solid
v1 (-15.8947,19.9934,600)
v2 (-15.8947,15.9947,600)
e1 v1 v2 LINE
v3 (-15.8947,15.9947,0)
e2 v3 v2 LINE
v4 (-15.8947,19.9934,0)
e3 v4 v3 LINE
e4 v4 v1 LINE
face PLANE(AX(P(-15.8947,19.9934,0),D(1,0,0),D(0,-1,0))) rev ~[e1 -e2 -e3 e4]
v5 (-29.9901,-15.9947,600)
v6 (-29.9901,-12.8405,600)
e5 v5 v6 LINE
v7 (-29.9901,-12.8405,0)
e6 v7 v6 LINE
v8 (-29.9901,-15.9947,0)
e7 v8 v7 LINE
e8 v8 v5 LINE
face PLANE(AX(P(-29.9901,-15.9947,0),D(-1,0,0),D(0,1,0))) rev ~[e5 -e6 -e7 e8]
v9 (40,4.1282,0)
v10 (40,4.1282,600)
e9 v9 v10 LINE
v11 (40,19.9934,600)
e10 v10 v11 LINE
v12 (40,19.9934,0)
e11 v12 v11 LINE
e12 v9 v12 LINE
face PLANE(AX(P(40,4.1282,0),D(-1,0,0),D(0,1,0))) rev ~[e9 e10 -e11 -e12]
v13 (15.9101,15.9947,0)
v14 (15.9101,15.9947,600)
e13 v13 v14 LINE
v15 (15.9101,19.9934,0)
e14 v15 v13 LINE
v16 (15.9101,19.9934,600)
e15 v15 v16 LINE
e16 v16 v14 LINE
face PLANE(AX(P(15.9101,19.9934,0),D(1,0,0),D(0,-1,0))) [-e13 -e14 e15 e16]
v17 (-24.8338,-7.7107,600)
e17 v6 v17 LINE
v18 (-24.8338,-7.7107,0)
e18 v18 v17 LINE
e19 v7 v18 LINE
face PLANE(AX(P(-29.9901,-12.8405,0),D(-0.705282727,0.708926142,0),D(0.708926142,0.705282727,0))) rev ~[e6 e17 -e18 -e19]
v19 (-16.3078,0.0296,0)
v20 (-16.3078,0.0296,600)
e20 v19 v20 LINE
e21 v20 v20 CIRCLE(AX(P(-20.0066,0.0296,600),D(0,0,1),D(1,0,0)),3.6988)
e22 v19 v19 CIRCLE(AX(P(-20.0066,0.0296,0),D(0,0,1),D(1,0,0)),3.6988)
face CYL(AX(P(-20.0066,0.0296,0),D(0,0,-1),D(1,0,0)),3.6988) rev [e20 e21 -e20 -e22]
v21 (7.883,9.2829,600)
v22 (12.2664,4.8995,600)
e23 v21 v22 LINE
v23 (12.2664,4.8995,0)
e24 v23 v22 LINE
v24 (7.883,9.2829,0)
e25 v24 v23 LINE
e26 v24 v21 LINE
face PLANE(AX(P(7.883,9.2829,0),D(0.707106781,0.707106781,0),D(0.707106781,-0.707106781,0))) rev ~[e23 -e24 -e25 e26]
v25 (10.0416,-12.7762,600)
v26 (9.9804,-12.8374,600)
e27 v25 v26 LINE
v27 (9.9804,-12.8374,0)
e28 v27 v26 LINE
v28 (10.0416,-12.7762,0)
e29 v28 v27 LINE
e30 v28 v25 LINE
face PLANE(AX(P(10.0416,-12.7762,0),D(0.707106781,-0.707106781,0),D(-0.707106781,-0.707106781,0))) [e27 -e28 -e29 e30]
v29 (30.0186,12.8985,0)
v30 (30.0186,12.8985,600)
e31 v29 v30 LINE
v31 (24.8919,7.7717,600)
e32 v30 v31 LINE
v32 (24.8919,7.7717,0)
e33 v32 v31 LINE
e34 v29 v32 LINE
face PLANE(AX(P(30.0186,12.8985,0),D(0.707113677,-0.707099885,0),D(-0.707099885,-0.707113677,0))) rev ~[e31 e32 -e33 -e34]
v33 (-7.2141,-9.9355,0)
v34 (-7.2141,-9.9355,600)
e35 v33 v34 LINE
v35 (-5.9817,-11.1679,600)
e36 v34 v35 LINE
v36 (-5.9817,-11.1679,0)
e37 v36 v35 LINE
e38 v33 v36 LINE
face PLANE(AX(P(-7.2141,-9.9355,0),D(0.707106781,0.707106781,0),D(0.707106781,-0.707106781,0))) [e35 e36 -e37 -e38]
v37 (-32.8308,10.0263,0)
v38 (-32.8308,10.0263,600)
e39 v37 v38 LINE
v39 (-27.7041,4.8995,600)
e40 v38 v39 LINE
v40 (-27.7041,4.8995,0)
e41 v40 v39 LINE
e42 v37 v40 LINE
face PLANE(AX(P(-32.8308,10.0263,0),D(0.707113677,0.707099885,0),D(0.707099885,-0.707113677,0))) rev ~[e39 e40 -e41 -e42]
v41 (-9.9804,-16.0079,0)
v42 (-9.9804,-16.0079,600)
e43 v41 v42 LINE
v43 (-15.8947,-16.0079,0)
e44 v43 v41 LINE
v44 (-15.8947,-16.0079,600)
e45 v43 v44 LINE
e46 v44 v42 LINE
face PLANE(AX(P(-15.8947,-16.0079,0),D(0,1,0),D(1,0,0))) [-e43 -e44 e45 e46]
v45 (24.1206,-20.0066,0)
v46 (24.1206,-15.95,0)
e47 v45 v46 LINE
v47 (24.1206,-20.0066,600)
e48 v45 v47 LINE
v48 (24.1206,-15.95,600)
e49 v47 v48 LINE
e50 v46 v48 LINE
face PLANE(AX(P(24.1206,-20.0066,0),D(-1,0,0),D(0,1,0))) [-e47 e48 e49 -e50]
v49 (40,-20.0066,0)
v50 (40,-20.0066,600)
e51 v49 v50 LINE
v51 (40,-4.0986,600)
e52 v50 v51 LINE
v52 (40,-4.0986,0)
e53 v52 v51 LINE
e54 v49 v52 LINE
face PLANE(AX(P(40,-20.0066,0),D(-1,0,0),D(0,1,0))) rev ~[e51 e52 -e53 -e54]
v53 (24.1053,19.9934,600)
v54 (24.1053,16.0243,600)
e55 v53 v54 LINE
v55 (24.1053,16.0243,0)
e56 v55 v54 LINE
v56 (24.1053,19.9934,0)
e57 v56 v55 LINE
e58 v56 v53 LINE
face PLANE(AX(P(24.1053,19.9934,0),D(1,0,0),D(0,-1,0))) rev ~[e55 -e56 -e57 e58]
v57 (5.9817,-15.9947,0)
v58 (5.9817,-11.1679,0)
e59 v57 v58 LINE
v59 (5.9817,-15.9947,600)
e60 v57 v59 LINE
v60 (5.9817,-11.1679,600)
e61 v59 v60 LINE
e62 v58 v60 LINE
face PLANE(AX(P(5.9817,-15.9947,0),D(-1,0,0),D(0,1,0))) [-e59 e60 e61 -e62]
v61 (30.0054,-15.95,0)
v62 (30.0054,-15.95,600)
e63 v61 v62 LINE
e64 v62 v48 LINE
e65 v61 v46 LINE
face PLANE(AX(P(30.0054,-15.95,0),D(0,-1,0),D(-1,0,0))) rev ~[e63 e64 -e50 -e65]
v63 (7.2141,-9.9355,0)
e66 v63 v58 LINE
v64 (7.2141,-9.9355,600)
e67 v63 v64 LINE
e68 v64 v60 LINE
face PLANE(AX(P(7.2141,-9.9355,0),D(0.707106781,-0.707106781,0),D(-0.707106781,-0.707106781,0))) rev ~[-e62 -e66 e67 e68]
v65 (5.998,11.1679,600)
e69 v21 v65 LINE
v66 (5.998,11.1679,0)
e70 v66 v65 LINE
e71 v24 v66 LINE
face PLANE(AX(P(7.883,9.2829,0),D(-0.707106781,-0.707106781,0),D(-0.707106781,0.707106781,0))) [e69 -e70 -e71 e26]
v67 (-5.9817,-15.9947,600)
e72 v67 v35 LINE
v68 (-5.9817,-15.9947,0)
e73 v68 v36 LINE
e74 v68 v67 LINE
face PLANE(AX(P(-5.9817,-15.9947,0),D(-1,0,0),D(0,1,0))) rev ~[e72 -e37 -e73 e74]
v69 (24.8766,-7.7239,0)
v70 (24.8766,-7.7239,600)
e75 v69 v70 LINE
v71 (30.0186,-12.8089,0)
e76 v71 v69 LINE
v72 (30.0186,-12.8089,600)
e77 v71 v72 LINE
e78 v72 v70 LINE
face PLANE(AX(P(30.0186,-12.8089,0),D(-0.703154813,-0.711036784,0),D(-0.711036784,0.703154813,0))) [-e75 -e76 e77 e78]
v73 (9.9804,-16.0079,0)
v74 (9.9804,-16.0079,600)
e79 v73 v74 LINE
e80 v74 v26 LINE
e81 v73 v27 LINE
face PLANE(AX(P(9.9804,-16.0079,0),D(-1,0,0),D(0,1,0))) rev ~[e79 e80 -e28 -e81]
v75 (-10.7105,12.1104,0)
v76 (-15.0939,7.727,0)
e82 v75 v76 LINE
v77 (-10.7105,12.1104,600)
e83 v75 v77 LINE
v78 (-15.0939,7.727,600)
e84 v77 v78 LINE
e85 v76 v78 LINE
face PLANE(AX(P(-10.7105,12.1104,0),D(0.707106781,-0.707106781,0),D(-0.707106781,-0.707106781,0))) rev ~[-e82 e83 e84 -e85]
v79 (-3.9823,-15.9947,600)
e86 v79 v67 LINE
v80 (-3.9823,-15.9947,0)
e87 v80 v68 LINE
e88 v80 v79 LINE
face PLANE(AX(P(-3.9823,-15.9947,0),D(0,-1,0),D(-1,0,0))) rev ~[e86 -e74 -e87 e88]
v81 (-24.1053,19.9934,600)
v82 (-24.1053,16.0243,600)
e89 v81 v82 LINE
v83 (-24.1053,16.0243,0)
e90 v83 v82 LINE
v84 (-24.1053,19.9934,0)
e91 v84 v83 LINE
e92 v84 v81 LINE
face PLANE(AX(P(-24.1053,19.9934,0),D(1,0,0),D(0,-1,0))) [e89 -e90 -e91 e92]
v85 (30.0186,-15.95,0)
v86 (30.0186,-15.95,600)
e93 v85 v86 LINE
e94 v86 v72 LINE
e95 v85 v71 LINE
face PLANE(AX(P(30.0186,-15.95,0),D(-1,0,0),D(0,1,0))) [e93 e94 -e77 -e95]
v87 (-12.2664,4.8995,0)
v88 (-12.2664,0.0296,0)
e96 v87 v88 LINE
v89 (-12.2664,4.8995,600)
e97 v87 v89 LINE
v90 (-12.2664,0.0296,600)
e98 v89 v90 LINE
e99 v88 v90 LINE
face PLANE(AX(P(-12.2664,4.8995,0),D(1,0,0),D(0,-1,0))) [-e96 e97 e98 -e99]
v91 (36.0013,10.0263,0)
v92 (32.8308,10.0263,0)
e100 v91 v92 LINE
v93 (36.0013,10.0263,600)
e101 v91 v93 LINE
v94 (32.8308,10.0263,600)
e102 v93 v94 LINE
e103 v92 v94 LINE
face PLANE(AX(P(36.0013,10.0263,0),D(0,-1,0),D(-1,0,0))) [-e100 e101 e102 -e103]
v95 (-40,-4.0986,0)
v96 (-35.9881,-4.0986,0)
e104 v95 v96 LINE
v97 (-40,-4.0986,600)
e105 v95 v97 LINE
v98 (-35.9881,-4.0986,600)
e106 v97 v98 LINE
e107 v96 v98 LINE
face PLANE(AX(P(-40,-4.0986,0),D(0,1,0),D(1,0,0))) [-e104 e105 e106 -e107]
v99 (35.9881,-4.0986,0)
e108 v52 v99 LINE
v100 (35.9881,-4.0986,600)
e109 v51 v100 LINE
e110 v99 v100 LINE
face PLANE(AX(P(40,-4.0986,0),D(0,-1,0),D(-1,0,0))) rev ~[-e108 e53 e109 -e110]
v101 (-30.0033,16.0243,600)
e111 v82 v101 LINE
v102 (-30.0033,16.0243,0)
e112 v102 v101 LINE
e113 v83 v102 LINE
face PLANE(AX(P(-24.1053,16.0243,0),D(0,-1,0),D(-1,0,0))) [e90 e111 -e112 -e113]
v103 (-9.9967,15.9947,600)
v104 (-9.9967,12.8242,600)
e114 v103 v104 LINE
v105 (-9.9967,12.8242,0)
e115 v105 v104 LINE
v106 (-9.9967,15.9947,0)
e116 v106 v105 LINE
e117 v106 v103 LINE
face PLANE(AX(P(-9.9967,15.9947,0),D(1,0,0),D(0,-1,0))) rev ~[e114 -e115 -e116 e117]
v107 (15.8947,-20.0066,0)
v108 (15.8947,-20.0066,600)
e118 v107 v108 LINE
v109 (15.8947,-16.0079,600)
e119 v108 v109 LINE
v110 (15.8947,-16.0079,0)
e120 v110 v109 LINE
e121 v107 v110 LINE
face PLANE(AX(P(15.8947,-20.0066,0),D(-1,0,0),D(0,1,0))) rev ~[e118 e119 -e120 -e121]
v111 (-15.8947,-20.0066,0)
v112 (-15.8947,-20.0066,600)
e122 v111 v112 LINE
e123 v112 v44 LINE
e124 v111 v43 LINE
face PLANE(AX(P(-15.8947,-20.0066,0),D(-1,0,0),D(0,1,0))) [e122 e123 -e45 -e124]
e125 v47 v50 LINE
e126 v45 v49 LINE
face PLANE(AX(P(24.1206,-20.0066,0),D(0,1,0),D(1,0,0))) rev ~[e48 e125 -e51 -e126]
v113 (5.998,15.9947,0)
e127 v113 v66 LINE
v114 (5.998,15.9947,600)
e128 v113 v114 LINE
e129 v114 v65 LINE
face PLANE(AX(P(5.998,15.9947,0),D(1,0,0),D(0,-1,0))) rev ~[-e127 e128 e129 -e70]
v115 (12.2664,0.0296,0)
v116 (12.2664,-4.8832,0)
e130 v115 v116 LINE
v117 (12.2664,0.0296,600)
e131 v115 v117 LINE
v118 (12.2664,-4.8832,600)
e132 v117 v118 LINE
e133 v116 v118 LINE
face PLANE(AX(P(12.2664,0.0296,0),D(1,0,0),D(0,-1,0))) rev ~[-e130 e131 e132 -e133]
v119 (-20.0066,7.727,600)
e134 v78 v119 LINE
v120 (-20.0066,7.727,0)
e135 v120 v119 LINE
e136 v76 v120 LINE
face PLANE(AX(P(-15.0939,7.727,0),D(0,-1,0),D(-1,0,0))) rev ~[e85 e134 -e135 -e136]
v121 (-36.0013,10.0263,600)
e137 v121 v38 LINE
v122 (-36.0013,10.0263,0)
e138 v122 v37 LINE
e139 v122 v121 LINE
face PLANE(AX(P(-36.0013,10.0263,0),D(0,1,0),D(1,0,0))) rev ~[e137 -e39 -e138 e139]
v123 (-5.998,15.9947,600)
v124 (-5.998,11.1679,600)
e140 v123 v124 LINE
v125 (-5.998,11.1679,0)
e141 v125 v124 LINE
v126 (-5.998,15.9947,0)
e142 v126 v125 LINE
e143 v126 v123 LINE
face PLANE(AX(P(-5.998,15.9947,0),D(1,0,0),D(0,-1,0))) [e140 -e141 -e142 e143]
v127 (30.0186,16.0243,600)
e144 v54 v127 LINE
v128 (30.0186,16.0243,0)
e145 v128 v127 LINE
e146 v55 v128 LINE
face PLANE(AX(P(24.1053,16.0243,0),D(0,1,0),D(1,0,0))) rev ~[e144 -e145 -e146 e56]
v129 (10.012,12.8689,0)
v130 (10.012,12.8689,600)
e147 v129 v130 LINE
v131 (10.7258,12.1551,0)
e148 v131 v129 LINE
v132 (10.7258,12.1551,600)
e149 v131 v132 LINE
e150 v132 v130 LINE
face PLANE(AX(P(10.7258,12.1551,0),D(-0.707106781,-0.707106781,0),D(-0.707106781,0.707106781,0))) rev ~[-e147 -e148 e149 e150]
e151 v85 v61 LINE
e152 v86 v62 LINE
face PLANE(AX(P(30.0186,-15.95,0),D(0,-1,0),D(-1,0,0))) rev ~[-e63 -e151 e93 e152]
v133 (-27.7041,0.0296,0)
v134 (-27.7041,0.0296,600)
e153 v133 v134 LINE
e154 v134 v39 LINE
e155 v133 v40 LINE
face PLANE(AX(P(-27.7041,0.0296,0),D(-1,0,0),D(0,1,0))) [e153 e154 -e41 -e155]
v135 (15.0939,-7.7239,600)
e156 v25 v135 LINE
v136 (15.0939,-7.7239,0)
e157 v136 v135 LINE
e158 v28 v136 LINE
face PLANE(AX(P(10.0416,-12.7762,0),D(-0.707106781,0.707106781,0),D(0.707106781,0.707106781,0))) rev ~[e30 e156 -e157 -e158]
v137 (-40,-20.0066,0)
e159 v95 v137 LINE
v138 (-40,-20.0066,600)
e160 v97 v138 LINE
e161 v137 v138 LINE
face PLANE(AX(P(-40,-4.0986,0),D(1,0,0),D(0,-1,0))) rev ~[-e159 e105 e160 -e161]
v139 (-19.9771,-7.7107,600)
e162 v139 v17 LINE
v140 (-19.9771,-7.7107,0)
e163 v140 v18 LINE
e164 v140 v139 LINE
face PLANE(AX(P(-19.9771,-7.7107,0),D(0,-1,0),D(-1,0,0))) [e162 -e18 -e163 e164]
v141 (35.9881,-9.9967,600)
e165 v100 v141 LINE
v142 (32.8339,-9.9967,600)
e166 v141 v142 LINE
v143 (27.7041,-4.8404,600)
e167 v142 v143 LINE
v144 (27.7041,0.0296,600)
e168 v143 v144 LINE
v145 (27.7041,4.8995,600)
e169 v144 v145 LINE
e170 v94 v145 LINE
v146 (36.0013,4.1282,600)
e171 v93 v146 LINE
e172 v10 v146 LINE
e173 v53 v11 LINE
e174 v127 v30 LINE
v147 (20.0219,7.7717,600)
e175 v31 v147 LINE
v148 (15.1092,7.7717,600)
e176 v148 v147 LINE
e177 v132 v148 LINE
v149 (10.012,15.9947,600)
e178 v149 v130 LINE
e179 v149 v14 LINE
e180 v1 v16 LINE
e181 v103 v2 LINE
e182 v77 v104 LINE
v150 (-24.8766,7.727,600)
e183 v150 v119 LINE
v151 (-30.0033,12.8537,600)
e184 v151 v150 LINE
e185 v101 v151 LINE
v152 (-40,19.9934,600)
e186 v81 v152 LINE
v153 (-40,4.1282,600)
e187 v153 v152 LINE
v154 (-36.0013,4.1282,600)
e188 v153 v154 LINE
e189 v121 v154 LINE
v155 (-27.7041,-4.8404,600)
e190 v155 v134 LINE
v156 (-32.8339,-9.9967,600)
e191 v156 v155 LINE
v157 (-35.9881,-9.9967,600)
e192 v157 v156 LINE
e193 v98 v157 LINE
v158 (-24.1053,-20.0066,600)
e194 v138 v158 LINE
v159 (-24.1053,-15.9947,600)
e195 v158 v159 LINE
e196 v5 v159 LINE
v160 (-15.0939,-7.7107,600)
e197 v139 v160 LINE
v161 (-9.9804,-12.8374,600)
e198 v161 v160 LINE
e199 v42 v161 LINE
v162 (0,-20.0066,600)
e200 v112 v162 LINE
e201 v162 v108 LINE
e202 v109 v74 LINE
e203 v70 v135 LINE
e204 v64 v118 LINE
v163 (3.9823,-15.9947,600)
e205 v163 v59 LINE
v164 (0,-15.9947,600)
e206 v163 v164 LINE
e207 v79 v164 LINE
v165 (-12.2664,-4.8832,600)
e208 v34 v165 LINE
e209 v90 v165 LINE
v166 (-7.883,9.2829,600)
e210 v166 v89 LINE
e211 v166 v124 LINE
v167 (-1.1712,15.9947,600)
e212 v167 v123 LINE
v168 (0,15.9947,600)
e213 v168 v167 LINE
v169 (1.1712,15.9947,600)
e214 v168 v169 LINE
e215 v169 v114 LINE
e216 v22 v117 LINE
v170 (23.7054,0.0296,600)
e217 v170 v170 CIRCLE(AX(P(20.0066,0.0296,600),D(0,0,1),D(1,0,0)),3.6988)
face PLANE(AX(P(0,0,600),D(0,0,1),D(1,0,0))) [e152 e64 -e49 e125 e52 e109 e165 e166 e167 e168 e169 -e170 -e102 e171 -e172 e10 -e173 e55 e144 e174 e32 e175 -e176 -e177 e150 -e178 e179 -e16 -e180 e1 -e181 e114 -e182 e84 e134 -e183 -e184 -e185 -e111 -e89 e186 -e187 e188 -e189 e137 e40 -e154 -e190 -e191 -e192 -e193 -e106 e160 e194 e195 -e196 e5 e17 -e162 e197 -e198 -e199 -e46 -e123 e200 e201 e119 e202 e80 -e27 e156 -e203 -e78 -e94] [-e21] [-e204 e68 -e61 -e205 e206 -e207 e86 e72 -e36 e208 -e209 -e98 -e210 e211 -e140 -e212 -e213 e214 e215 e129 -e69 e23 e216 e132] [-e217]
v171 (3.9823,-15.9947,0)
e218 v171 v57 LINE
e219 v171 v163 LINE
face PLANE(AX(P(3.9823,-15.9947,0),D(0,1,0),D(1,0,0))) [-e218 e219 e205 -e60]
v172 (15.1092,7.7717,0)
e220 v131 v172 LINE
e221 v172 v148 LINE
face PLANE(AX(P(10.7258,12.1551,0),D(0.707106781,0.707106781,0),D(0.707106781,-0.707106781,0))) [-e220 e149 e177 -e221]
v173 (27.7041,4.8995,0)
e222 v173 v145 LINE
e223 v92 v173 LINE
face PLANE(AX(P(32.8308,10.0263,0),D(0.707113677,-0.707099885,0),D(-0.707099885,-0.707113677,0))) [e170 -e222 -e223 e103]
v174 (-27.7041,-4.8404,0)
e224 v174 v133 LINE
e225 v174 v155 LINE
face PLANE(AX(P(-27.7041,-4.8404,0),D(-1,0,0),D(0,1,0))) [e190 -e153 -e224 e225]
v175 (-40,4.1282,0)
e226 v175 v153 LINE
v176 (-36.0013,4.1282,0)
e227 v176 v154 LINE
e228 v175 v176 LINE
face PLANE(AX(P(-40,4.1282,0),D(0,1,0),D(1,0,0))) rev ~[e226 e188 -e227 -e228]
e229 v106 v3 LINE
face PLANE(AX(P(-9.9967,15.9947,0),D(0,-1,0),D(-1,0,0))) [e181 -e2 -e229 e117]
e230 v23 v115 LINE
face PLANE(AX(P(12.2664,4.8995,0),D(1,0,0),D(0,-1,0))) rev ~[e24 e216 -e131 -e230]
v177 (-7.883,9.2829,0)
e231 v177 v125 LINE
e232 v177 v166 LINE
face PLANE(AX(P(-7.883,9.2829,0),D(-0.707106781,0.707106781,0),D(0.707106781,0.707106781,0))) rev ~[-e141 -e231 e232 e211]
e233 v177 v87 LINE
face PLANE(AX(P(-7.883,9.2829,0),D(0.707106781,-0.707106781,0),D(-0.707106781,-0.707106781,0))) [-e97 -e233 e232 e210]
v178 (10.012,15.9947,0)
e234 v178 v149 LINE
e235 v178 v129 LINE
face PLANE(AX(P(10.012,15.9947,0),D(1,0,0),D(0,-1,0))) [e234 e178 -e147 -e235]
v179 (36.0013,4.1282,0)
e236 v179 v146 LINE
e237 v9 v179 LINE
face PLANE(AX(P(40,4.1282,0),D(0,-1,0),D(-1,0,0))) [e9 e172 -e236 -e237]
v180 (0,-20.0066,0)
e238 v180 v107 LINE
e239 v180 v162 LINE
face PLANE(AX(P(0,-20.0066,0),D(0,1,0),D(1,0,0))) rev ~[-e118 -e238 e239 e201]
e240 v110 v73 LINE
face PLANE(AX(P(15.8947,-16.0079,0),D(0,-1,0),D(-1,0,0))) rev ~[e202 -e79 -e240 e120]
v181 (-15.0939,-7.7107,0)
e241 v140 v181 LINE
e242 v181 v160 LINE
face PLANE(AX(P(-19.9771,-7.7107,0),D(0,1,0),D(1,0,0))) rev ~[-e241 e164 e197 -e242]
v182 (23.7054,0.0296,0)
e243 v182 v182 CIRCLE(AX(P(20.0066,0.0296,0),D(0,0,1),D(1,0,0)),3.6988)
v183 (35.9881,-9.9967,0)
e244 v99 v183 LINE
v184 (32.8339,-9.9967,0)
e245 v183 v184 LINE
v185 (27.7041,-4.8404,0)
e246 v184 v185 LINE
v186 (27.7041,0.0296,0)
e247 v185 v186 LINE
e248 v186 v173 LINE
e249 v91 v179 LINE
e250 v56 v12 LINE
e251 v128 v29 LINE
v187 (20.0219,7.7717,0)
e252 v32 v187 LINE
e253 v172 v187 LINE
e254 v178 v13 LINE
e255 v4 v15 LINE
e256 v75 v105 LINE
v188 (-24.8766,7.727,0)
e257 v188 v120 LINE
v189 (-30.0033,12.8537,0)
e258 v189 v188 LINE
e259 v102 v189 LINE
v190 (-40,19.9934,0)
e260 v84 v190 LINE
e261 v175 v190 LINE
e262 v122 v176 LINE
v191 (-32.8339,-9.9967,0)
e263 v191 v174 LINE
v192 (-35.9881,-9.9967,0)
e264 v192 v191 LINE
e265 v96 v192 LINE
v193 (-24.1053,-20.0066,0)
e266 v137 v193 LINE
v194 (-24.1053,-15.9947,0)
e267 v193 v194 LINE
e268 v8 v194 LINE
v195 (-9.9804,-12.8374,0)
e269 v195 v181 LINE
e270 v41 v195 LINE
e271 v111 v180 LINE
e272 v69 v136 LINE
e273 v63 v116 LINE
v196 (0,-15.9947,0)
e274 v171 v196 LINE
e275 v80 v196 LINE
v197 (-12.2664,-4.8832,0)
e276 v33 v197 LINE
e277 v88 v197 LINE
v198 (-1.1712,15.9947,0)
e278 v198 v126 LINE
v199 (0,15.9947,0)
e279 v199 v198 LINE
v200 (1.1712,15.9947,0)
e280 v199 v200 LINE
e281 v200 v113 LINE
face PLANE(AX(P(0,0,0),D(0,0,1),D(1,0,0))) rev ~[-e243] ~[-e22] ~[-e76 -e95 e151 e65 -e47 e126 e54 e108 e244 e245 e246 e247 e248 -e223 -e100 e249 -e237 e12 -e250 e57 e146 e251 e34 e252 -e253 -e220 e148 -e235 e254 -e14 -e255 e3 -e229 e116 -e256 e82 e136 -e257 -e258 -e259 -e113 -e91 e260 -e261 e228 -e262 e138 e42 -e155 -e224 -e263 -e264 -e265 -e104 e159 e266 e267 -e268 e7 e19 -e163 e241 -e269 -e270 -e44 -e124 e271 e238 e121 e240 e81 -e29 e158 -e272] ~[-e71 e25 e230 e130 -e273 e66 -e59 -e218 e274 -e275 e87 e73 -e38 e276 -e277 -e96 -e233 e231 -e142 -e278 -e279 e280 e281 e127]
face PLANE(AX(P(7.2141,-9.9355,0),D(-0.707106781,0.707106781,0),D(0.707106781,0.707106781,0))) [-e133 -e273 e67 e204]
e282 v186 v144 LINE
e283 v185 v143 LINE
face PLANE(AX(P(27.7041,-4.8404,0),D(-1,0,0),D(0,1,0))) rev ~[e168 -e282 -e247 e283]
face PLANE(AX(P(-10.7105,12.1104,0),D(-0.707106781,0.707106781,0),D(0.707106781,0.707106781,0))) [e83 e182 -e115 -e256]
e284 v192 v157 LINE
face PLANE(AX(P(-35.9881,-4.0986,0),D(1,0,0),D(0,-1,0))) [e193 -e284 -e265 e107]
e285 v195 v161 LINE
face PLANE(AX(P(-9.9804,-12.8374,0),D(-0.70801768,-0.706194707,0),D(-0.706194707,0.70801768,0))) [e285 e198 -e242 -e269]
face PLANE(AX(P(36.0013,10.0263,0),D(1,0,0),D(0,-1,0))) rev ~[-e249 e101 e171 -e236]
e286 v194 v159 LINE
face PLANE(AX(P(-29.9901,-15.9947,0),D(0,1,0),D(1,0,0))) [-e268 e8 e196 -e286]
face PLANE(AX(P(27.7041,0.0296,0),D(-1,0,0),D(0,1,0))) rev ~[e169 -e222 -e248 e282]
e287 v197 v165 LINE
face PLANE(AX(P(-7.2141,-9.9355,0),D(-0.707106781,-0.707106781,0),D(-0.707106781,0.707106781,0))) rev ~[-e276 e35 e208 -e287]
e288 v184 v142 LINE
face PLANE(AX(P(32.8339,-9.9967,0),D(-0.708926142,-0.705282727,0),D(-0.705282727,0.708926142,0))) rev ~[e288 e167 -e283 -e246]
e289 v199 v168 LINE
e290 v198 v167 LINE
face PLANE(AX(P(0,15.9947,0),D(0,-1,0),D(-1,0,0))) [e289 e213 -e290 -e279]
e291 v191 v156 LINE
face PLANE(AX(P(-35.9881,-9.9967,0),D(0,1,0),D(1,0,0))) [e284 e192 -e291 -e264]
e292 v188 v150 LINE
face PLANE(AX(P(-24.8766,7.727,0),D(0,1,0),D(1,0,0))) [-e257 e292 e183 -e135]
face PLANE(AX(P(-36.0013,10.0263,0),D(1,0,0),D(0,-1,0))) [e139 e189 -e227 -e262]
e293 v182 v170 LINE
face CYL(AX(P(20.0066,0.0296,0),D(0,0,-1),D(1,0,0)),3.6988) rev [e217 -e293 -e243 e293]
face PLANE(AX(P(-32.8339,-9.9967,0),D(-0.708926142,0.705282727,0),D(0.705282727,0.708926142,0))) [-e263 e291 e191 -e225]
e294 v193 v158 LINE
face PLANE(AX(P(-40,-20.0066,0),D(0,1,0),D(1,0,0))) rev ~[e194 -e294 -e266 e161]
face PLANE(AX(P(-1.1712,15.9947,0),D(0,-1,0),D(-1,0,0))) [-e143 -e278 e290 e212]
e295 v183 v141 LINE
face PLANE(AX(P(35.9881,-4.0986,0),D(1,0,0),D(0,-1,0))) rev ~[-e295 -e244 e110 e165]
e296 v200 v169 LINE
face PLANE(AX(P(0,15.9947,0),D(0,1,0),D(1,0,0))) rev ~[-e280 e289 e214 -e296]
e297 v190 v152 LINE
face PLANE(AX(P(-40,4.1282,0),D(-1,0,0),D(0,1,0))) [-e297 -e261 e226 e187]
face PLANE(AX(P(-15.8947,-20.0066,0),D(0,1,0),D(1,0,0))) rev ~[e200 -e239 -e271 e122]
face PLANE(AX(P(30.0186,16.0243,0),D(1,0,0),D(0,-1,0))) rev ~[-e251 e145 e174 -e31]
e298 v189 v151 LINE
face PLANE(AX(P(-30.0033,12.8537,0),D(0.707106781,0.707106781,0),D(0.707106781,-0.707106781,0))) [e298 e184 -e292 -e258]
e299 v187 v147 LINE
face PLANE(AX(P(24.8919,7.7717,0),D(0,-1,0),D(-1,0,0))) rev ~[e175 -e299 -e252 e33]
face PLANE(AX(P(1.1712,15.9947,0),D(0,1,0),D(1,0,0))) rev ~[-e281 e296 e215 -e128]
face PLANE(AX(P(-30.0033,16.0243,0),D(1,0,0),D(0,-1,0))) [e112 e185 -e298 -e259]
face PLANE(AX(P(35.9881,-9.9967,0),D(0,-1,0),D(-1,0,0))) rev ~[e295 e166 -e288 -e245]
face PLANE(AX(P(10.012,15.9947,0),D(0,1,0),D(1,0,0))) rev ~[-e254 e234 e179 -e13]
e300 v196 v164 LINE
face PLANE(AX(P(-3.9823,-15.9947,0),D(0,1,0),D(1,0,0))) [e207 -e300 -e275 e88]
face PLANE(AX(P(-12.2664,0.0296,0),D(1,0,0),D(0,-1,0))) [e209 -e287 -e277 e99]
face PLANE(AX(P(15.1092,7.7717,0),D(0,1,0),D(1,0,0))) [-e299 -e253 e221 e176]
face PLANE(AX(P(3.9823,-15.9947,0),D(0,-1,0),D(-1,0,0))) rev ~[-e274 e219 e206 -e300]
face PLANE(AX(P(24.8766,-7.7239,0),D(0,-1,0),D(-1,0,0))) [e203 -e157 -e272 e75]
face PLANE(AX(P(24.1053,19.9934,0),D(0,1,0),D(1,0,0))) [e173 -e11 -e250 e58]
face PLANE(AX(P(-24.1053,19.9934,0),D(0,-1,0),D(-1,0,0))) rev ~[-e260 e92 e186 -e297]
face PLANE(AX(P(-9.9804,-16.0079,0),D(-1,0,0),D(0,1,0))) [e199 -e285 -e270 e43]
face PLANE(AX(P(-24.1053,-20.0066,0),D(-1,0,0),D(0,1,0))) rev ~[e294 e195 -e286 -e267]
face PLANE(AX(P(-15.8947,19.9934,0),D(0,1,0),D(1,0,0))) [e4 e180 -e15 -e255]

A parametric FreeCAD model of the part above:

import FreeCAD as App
import Part
import Sketcher
from FreeCAD import Vector
Q = App.Units.Quantity

doc = App.newDocument("Part")
body = doc.addObject("PartDesign::Body", "Body")

# Sketch on XY plane
sketch1 = body.newObject("Sketcher::SketchObject", "Sketch")
sketch1.AttachmentSupport = (doc.getObject("XY_Plane"), [""])
sketch1.MapMode = "FlatFace"
sketch1.addGeometry(Part.LineSegment(Vector(-40, -4.1, 0), Vector(-40, -20, 0)), False)
sketch1.addGeometry(Part.LineSegment(Vector(-40, -20, 0), Vector(-24.1, -20, 0)), False)
sketch1.addGeometry(Part.LineSegment(Vector(-24.1, -20, 0), Vector(-24.1, -16, 0)), False)
sketch1.addGeometry(Part.LineSegment(Vector(-24.1, -16, 0), Vector(-30, -16, 0)), False)
sketch1.addGeometry(Part.LineSegment(Vector(-30, -16, 0), Vector(-30, -12.8, 0)), False)
sketch1.addGeometry(Part.LineSegment(Vector(-30, -12.8, 0), Vector(-24.8, -7.7, 0)), False)
sketch1.addGeometry(Part.LineSegment(Vector(-24.8, -7.7, 0), Vector(-15.1, -7.7, 0)), False)
sketch1.addGeometry(Part.LineSegment(Vector(-15.1, -7.7, 0), Vector(-10, -12.8, 0)), False)
sketch1.addGeometry(Part.LineSegment(Vector(-10, -12.8, 0), Vector(-10, -16, 0)), False)
sketch1.addGeometry(Part.LineSegment(Vector(-10, -16, 0), Vector(-15.9, -16, 0)), False)
sketch1.addGeometry(Part.LineSegment(Vector(-15.9, -16, 0), Vector(-15.9, -20, 0)), False)
sketch1.addGeometry(Part.LineSegment(Vector(-15.9, -20, 0), Vector(15.9, -20, 0)), False)
sketch1.addGeometry(Part.LineSegment(Vector(15.9, -20, 0), Vector(15.9, -16, 0)), False)
sketch1.addGeometry(Part.LineSegment(Vector(15.9, -16, 0), Vector(10, -16, 0)), False)
sketch1.addGeometry(Part.LineSegment(Vector(10, -16, 0), Vector(10, -12.8, 0)), False)
sketch1.addGeometry(Part.LineSegment(Vector(10, -12.8, 0), Vector(15.1, -7.7, 0)), False)
sketch1.addGeometry(Part.LineSegment(Vector(15.1, -7.7, 0), Vector(24.9, -7.7, 0)), False)
sketch1.addGeometry(Part.LineSegment(Vector(24.9, -7.7, 0), Vector(30, -12.8, 0)), False)
sketch1.addGeometry(Part.LineSegment(Vector(30, -12.8, 0), Vector(30, -15.9, 0)), False)
sketch1.addGeometry(Part.LineSegment(Vector(30, -15.9, 0), Vector(24.1, -15.9, 0)), False)
sketch1.addGeometry(Part.LineSegment(Vector(24.1, -15.9, 0), Vector(24.1, -20, 0)), False)
sketch1.addGeometry(Part.LineSegment(Vector(24.1, -20, 0), Vector(40, -20, 0)), False)
sketch1.addGeometry(Part.LineSegment(Vector(40, -20, 0), Vector(40, -4.1, 0)), False)
sketch1.addGeometry(Part.LineSegment(Vector(40, -4.1, 0), Vector(36, -4.1, 0)), False)
sketch1.addGeometry(Part.LineSegment(Vector(36, -4.1, 0), Vector(36, -10, 0)), False)
sketch1.addGeometry(Part.LineSegment(Vector(36, -10, 0), Vector(32.8, -10, 0)), False)
sketch1.addGeometry(Part.LineSegment(Vector(32.8, -10, 0), Vector(27.7, -4.8, 0)), False)
sketch1.addGeometry(Part.LineSegment(Vector(27.7, -4.8, 0), Vector(27.7, 4.9, 0)), False)
sketch1.addGeometry(Part.LineSegment(Vector(27.7, 4.9, 0), Vector(32.8, 10, 0)), False)
sketch1.addGeometry(Part.LineSegment(Vector(32.8, 10, 0), Vector(36, 10, 0)), False)
sketch1.addGeometry(Part.LineSegment(Vector(36, 10, 0), Vector(36, 4.1, 0)), False)
sketch1.addGeometry(Part.LineSegment(Vector(36, 4.1, 0), Vector(40, 4.1, 0)), False)
sketch1.addGeometry(Part.LineSegment(Vector(40, 4.1, 0), Vector(40, 20, 0)), False)
sketch1.addGeometry(Part.LineSegment(Vector(40, 20, 0), Vector(24.1, 20, 0)), False)
sketch1.addGeometry(Part.LineSegment(Vector(24.1, 20, 0), Vector(24.1, 16, 0)), False)
sketch1.addGeometry(Part.LineSegment(Vector(24.1, 16, 0), Vector(30, 16, 0)), False)
sketch1.addGeometry(Part.LineSegment(Vector(30, 16, 0), Vector(30, 12.9, 0)), False)
sketch1.addGeometry(Part.LineSegment(Vector(30, 12.9, 0), Vector(24.9, 7.8, 0)), False)
sketch1.addGeometry(Part.LineSegment(Vector(24.9, 7.8, 0), Vector(15.1, 7.8, 0)), False)
sketch1.addGeometry(Part.LineSegment(Vector(15.1, 7.8, 0), Vector(10, 12.9, 0)), False)
sketch1.addGeometry(Part.LineSegment(Vector(10, 12.9, 0), Vector(10, 16, 0)), False)
sketch1.addGeometry(Part.LineSegment(Vector(10, 16, 0), Vector(15.9, 16, 0)), False)
sketch1.addGeometry(Part.LineSegment(Vector(15.9, 16, 0), Vector(15.9, 20, 0)), False)
sketch1.addGeometry(Part.LineSegment(Vector(15.9, 20, 0), Vector(-15.9, 20, 0)), False)
sketch1.addGeometry(Part.LineSegment(Vector(-15.9, 20, 0), Vector(-15.9, 16, 0)), False)
sketch1.addGeometry(Part.LineSegment(Vector(-15.9, 16, 0), Vector(-10, 16, 0)), False)
sketch1.addGeometry(Part.LineSegment(Vector(-10, 16, 0), Vector(-10, 12.8, 0)), False)
sketch1.addGeometry(Part.LineSegment(Vector(-10, 12.8, 0), Vector(-15.1, 7.7, 0)), False)
sketch1.addGeometry(Part.LineSegment(Vector(-15.1, 7.7, 0), Vector(-24.9, 7.7, 0)), False)
sketch1.addGeometry(Part.LineSegment(Vector(-24.9, 7.7, 0), Vector(-30, 12.9, 0)), False)
sketch1.addGeometry(Part.LineSegment(Vector(-30, 12.9, 0), Vector(-30, 16, 0)), False)
sketch1.addGeometry(Part.LineSegment(Vector(-30, 16, 0), Vector(-24.1, 16, 0)), False)
sketch1.addGeometry(Part.LineSegment(Vector(-24.1, 16, 0), Vector(-24.1, 20, 0)), False)
sketch1.addGeometry(Part.LineSegment(Vector(-24.1, 20, 0), Vector(-40, 20, 0)), False)
sketch1.addGeometry(Part.LineSegment(Vector(-40, 20, 0), Vector(-40, 4.1, 0)), False)
sketch1.addGeometry(Part.LineSegment(Vector(-40, 4.1, 0), Vector(-36, 4.1, 0)), False)
sketch1.addGeometry(Part.LineSegment(Vector(-36, 4.1, 0), Vector(-36, 10, 0)), False)
sketch1.addGeometry(Part.LineSegment(Vector(-36, 10, 0), Vector(-32.8, 10, 0)), False)
sketch1.addGeometry(Part.LineSegment(Vector(-32.8, 10, 0), Vector(-27.7, 4.9, 0)), False)
sketch1.addGeometry(Part.LineSegment(Vector(-27.7, 4.9, 0), Vector(-27.7, -4.8, 0)), False)
sketch1.addGeometry(Part.LineSegment(Vector(-27.7, -4.8, 0), Vector(-32.8, -10, 0)), False)
sketch1.addGeometry(Part.LineSegment(Vector(-32.8, -10, 0), Vector(-36, -10, 0)), False)
sketch1.addGeometry(Part.LineSegment(Vector(-36, -10, 0), Vector(-36, -4.1, 0)), False)
sketch1.addGeometry(Part.LineSegment(Vector(-36, -4.1, 0), Vector(-40, -4.1, 0)), False)
sketch1.addGeometry(Part.Circle(Vector(-20, 0, 0), Vector(0, 0, 1), 3.7), False)
sketch1.addGeometry(Part.LineSegment(Vector(-12.3, -4.9, 0), Vector(-12.3, 4.9, 0)), False)
sketch1.addGeometry(Part.LineSegment(Vector(-12.3, 4.9, 0), Vector(-6, 11.2, 0)), False)
sketch1.addGeometry(Part.LineSegment(Vector(-6, 11.2, 0), Vector(-6, 16, 0)), False)
sketch1.addGeometry(Part.LineSegment(Vector(-6, 16, 0), Vector(6, 16, 0)), False)
sketch1.addGeometry(Part.LineSegment(Vector(6, 16, 0), Vector(6, 11.2, 0)), False)
sketch1.addGeometry(Part.LineSegment(Vector(6, 11.2, 0), Vector(12.3, 4.9, 0)), False)
sketch1.addGeometry(Part.LineSegment(Vector(12.3, 4.9, 0), Vector(12.3, -4.9, 0)), False)
sketch1.addGeometry(Part.LineSegment(Vector(12.3, -4.9, 0), Vector(6, -11.2, 0)), False)
sketch1.addGeometry(Part.LineSegment(Vector(6, -11.2, 0), Vector(6, -16, 0)), False)
sketch1.addGeometry(Part.LineSegment(Vector(6, -16, 0), Vector(-6, -16, 0)), False)
sketch1.addGeometry(Part.LineSegment(Vector(-6, -16, 0), Vector(-6, -11.2, 0)), False)
sketch1.addGeometry(Part.LineSegment(Vector(-6, -11.2, 0), Vector(-12.3, -4.9, 0)), False)
sketch1.addGeometry(Part.Circle(Vector(20, 0, 0), Vector(0, 0, 1), 3.7), False)
sketch1.addConstraint(Sketcher.Constraint("Coincident", 0, 2, 1, 1))
sketch1.addConstraint(Sketcher.Constraint("Coincident", 1, 2, 2, 1))
sketch1.addConstraint(Sketcher.Constraint("Coincident", 2, 2, 3, 1))
sketch1.addConstraint(Sketcher.Constraint("Coincident", 3, 2, 4, 1))
sketch1.addConstraint(Sketcher.Constraint("Coincident", 4, 2, 5, 1))
sketch1.addConstraint(Sketcher.Constraint("Coincident", 5, 2, 6, 1))
sketch1.addConstraint(Sketcher.Constraint("Coincident", 6, 2, 7, 1))
sketch1.addConstraint(Sketcher.Constraint("Coincident", 7, 2, 8, 1))
sketch1.addConstraint(Sketcher.Constraint("Coincident", 8, 2, 9, 1))
sketch1.addConstraint(Sketcher.Constraint("Coincident", 9, 2, 10, 1))
sketch1.addConstraint(Sketcher.Constraint("Coincident", 10, 2, 11, 1))
sketch1.addConstraint(Sketcher.Constraint("Coincident", 11, 2, 12, 1))
sketch1.addConstraint(Sketcher.Constraint("Coincident", 12, 2, 13, 1))
sketch1.addConstraint(Sketcher.Constraint("Coincident", 13, 2, 14, 1))
sketch1.addConstraint(Sketcher.Constraint("Coincident", 14, 2, 15, 1))
sketch1.addConstraint(Sketcher.Constraint("Coincident", 15, 2, 16, 1))
sketch1.addConstraint(Sketcher.Constraint("Coincident", 16, 2, 17, 1))
sketch1.addConstraint(Sketcher.Constraint("Coincident", 17, 2, 18, 1))
sketch1.addConstraint(Sketcher.Constraint("Coincident", 18, 2, 19, 1))
sketch1.addConstraint(Sketcher.Constraint("Coincident", 19, 2, 20, 1))
sketch1.addConstraint(Sketcher.Constraint("Coincident", 20, 2, 21, 1))
sketch1.addConstraint(Sketcher.Constraint("Coincident", 21, 2, 22, 1))
sketch1.addConstraint(Sketcher.Constraint("Coincident", 22, 2, 23, 1))
sketch1.addConstraint(Sketcher.Constraint("Coincident", 23, 2, 24, 1))
sketch1.addConstraint(Sketcher.Constraint("Coincident", 24, 2, 25, 1))
sketch1.addConstraint(Sketcher.Constraint("Coincident", 25, 2, 26, 1))
sketch1.addConstraint(Sketcher.Constraint("Coincident", 26, 2, 27, 1))
sketch1.addConstraint(Sketcher.Constraint("Coincident", 27, 2, 28, 1))
sketch1.addConstraint(Sketcher.Constraint("Coincident", 28, 2, 29, 1))
sketch1.addConstraint(Sketcher.Constraint("Coincident", 29, 2, 30, 1))
sketch1.addConstraint(Sketcher.Constraint("Coincident", 30, 2, 31, 1))
sketch1.addConstraint(Sketcher.Constraint("Coincident", 31, 2, 32, 1))
sketch1.addConstraint(Sketcher.Constraint("Coincident", 32, 2, 33, 1))
sketch1.addConstraint(Sketcher.Constraint("Coincident", 33, 2, 34, 1))
sketch1.addConstraint(Sketcher.Constraint("Coincident", 34, 2, 35, 1))
sketch1.addConstraint(Sketcher.Constraint("Coincident", 35, 2, 36, 1))
sketch1.addConstraint(Sketcher.Constraint("Coincident", 36, 2, 37, 1))
sketch1.addConstraint(Sketcher.Constraint("Coincident", 37, 2, 38, 1))
sketch1.addConstraint(Sketcher.Constraint("Coincident", 38, 2, 39, 1))
sketch1.addConstraint(Sketcher.Constraint("Coincident", 39, 2, 40, 1))
sketch1.addConstraint(Sketcher.Constraint("Coincident", 40, 2, 41, 1))
sketch1.addConstraint(Sketcher.Constraint("Coincident", 41, 2, 42, 1))
sketch1.addConstraint(Sketcher.Constraint("Coincident", 42, 2, 43, 1))
sketch1.addConstraint(Sketcher.Constraint("Coincident", 43, 2, 44, 1))
sketch1.addConstraint(Sketcher.Constraint("Coincident", 44, 2, 45, 1))
sketch1.addConstraint(Sketcher.Constraint("Coincident", 45, 2, 46, 1))
sketch1.addConstraint(Sketcher.Constraint("Coincident", 46, 2, 47, 1))
sketch1.addConstraint(Sketcher.Constraint("Coincident", 47, 2, 48, 1))
sketch1.addConstraint(Sketcher.Constraint("Coincident", 48, 2, 49, 1))
sketch1.addConstraint(Sketcher.Constraint("Coincident", 49, 2, 50, 1))
sketch1.addConstraint(Sketcher.Constraint("Coincident", 50, 2, 51, 1))
sketch1.addConstraint(Sketcher.Constraint("Coincident", 51, 2, 52, 1))
sketch1.addConstraint(Sketcher.Constraint("Coincident", 52, 2, 53, 1))
sketch1.addConstraint(Sketcher.Constraint("Coincident", 53, 2, 54, 1))
sketch1.addConstraint(Sketcher.Constraint("Coincident", 54, 2, 55, 1))
sketch1.addConstraint(Sketcher.Constraint("Coincident", 55, 2, 56, 1))
sketch1.addConstraint(Sketcher.Constraint("Coincident", 56, 2, 57, 1))
sketch1.addConstraint(Sketcher.Constraint("Coincident", 57, 2, 58, 1))
sketch1.addConstraint(Sketcher.Constraint("Coincident", 58, 2, 59, 1))
sketch1.addConstraint(Sketcher.Constraint("Coincident", 59, 2, 60, 1))
sketch1.addConstraint(Sketcher.Constraint("Coincident", 60, 2, 61, 1))
sketch1.addConstraint(Sketcher.Constraint("Coincident", 61, 2, 62, 1))
sketch1.addConstraint(Sketcher.Constraint("Coincident", 62, 2, 63, 1))
sketch1.addConstraint(Sketcher.Constraint("Coincident", 63, 2, 0, 1))
sketch1.addConstraint(Sketcher.Constraint("Coincident", 65, 2, 66, 1))
sketch1.addConstraint(Sketcher.Constraint("Coincident", 66, 2, 67, 1))
sketch1.addConstraint(Sketcher.Constraint("Coincident", 67, 2, 68, 1))
sketch1.addConstraint(Sketcher.Constraint("Coincident", 68, 2, 69, 1))
sketch1.addConstraint(Sketcher.Constraint("Coincident", 69, 2, 70, 1))
sketch1.addConstraint(Sketcher.Constraint("Coincident", 70, 2, 71, 1))
sketch1.addConstraint(Sketcher.Constraint("Coincident", 71, 2, 72, 1))
sketch1.addConstraint(Sketcher.Constraint("Coincident", 72, 2, 73, 1))
sketch1.addConstraint(Sketcher.Constraint("Coincident", 73, 2, 74, 1))
sketch1.addConstraint(Sketcher.Constraint("Coincident", 74, 2, 75, 1))
sketch1.addConstraint(Sketcher.Constraint("Coincident", 75, 2, 76, 1))
sketch1.addConstraint(Sketcher.Constraint("Coincident", 76, 2, 65, 1))
sketch1.addConstraint(Sketcher.Constraint("Vertical", 0))
sketch1.addConstraint(Sketcher.Constraint("Horizontal", 1))
sketch1.addConstraint(Sketcher.Constraint("Vertical", 2))
sketch1.addConstraint(Sketcher.Constraint("Horizontal", 3))
sketch1.addConstraint(Sketcher.Constraint("Vertical", 4))
sketch1.addConstraint(Sketcher.Constraint("Horizontal", 6))
sketch1.addConstraint(Sketcher.Constraint("Vertical", 8))
sketch1.addConstraint(Sketcher.Constraint("Horizontal", 9))
sketch1.addConstraint(Sketcher.Constraint("Vertical", 10))
sketch1.addConstraint(Sketcher.Constraint("Horizontal", 11))
sketch1.addConstraint(Sketcher.Constraint("Vertical", 12))
sketch1.addConstraint(Sketcher.Constraint("Horizontal", 13))
sketch1.addConstraint(Sketcher.Constraint("Vertical", 14))
sketch1.addConstraint(Sketcher.Constraint("Horizontal", 16))
sketch1.addConstraint(Sketcher.Constraint("Vertical", 18))
sketch1.addConstraint(Sketcher.Constraint("Horizontal", 19))
sketch1.addConstraint(Sketcher.Constraint("Vertical", 20))
sketch1.addConstraint(Sketcher.Constraint("Horizontal", 21))
sketch1.addConstraint(Sketcher.Constraint("Vertical", 22))
sketch1.addConstraint(Sketcher.Constraint("Horizontal", 23))
sketch1.addConstraint(Sketcher.Constraint("Vertical", 24))
sketch1.addConstraint(Sketcher.Constraint("Horizontal", 25))
sketch1.addConstraint(Sketcher.Constraint("Vertical", 27))
sketch1.addConstraint(Sketcher.Constraint("Horizontal", 29))
sketch1.addConstraint(Sketcher.Constraint("Vertical", 30))
sketch1.addConstraint(Sketcher.Constraint("Horizontal", 31))
sketch1.addConstraint(Sketcher.Constraint("Vertical", 32))
sketch1.addConstraint(Sketcher.Constraint("Horizontal", 33))
sketch1.addConstraint(Sketcher.Constraint("Vertical", 34))
sketch1.addConstraint(Sketcher.Constraint("Horizontal", 35))
sketch1.addConstraint(Sketcher.Constraint("Vertical", 36))
sketch1.addConstraint(Sketcher.Constraint("Horizontal", 38))
sketch1.addConstraint(Sketcher.Constraint("Vertical", 40))
sketch1.addConstraint(Sketcher.Constraint("Horizontal", 41))
sketch1.addConstraint(Sketcher.Constraint("Vertical", 42))
sketch1.addConstraint(Sketcher.Constraint("Horizontal", 43))
sketch1.addConstraint(Sketcher.Constraint("Vertical", 44))
sketch1.addConstraint(Sketcher.Constraint("Horizontal", 45))
sketch1.addConstraint(Sketcher.Constraint("Vertical", 46))
sketch1.addConstraint(Sketcher.Constraint("Horizontal", 48))
sketch1.addConstraint(Sketcher.Constraint("Vertical", 50))
sketch1.addConstraint(Sketcher.Constraint("Horizontal", 51))
sketch1.addConstraint(Sketcher.Constraint("Vertical", 52))
sketch1.addConstraint(Sketcher.Constraint("Horizontal", 53))
sketch1.addConstraint(Sketcher.Constraint("Vertical", 54))
sketch1.addConstraint(Sketcher.Constraint("Horizontal", 55))
sketch1.addConstraint(Sketcher.Constraint("Vertical", 56))
sketch1.addConstraint(Sketcher.Constraint("Horizontal", 57))
sketch1.addConstraint(Sketcher.Constraint("Vertical", 59))
sketch1.addConstraint(Sketcher.Constraint("Horizontal", 61))
sketch1.addConstraint(Sketcher.Constraint("Vertical", 62))
sketch1.addConstraint(Sketcher.Constraint("Horizontal", 63))
sketch1.addConstraint(Sketcher.Constraint("Vertical", 65))
sketch1.addConstraint(Sketcher.Constraint("Vertical", 67))
sketch1.addConstraint(Sketcher.Constraint("Horizontal", 68))
sketch1.addConstraint(Sketcher.Constraint("Vertical", 69))
sketch1.addConstraint(Sketcher.Constraint("Vertical", 71))
sketch1.addConstraint(Sketcher.Constraint("Vertical", 73))
sketch1.addConstraint(Sketcher.Constraint("Horizontal", 74))
sketch1.addConstraint(Sketcher.Constraint("Vertical", 75))
sketch1.addConstraint(Sketcher.Constraint("Equal", 64, 77))
sketch1.addConstraint(Sketcher.Constraint("Symmetric", 64, 3, 77, 3, -2))
sketch1.addConstraint(Sketcher.Constraint("Symmetric", 9, 2, 12, 2, -2))
sketch1.addConstraint(Sketcher.Constraint("Symmetric", 7, 2, 14, 2, -2))
sketch1.addConstraint(Sketcher.Constraint("Symmetric", 0, 2, 21, 2, -2))
sketch1.addConstraint(Sketcher.Constraint("Symmetric", 34, 2, 51, 2, -2))
sketch1.addConstraint(Sketcher.Constraint("Symmetric", 32, 2, 53, 2, -2))
sketch1.addConstraint(Sketcher.Constraint("Symmetric", 30, 2, 55, 2, -2))
sketch1.addConstraint(Sketcher.Constraint("Symmetric", 28, 2, 57, 2, -2))
sketch1.addConstraint(Sketcher.Constraint("Symmetric", 27, 2, 58, 2, -2))
sketch1.addConstraint(Sketcher.Constraint("Symmetric", 25, 2, 60, 2, -2))
sketch1.addConstraint(Sketcher.Constraint("Symmetric", 23, 2, 62, 2, -2))
sketch1.addConstraint(Sketcher.Constraint("Symmetric", 66, 2, 69, 2, -2))
sketch1.addConstraint(Sketcher.Constraint("Symmetric", 65, 2, 70, 2, -2))
sketch1.addConstraint(Sketcher.Constraint("Symmetric", 72, 2, 75, 2, -2))
sketch1.addConstraint(Sketcher.Constraint("Perpendicular", 5, 26))
sketch1.addConstraint(Sketcher.Constraint("Parallel", 15, 28))
sketch1.addConstraint(Sketcher.Constraint("Parallel", 28, 37))
sketch1.addConstraint(Sketcher.Constraint("Perpendicular", 37, 39))
sketch1.addConstraint(Sketcher.Constraint("Perpendicular", 39, 47))
sketch1.addConstraint(Sketcher.Constraint("Perpendicular", 47, 49))
sketch1.addConstraint(Sketcher.Constraint("Parallel", 49, 58))
sketch1.addConstraint(Sketcher.Constraint("Perpendicular", 58, 66))
sketch1.addConstraint(Sketcher.Constraint("Perpendicular", 70, 72))
sketch1.addConstraint(Sketcher.Constraint("Perpendicular", 72, 76))
sketch1.addConstraint(Sketcher.Constraint("Horizontal", 1, 2, 10, 2))
sketch1.addConstraint(Sketcher.Constraint("Horizontal", 33, 2, 42, 2))
sketch1.addConstraint(Sketcher.Constraint("Horizontal", 41, 2, 44, 2))
sketch1.addConstraint(Sketcher.Constraint("Horizontal", 26, 2, 59, 2))
sketch1.addConstraint(Sketcher.Constraint("Horizontal", 58, 2, 65, 2))
sketch1.addConstraint(Sketcher.Constraint("Horizontal", 45, 2, 67, 2))
sketch1.addConstraint(Sketcher.Constraint("Horizontal", 3, 2, 73, 2))
sketch1.addConstraint(Sketcher.Constraint("Vertical", 22, 2, 31, 2))
sketch1.addConstraint(Sketcher.Constraint("Vertical", 18, 2, 35, 2))
sketch1.addConstraint(Sketcher.Constraint("Vertical", 10, 2, 43, 2))
sketch1.addConstraint(Sketcher.Constraint("Vertical", 6, 2, 47, 2))
sketch1.addConstraint(Sketcher.Constraint("Vertical", 2, 2, 51, 2))
sketch1.addConstraint(Sketcher.Constraint("Equal", 16, 38))
sketch1.addConstraint(Sketcher.Constraint("Equal", 19, 41))
sketch1.addConstraint(Sketcher.Constraint("Equal", 41, 45))
sketch1.addConstraint(Sketcher.Constraint("Equal", 38, 48))
sketch1.addConstraint(Sketcher.Constraint("Equal", 45, 51))
sketch1.addConstraint(Sketcher.Constraint("Equal", 63, 2))
sketch1.addConstraint(Sketcher.Constraint("Equal", 61, 4))
sketch1.addConstraint(Sketcher.Constraint("Equal", 57, 8))
sketch1.addConstraint(Sketcher.Constraint("Equal", 55, 10))
sketch1.addConstraint(Sketcher.Constraint("Equal", 51, 24))
sketch1.addConstraint(Sketcher.Constraint("Equal", 6, 27))
sketch1.addConstraint(Sketcher.Constraint("Equal", 24, 30))
sketch1.addConstraint(Sketcher.Constraint("Equal", 36, 40))
sketch1.addConstraint(Sketcher.Constraint("Equal", 12, 42))
sketch1.addConstraint(Sketcher.Constraint("Equal", 14, 46))
sketch1.addConstraint(Sketcher.Constraint("Equal", 46, 50))
sketch1.addConstraint(Sketcher.Constraint("Equal", 48, 65))
sketch1.addConstraint(Sketcher.Constraint("Equal", 69, 73))
sketch1.addConstraint(Sketcher.Constraint("Equal", 15, 17))
sketch1.addConstraint(Sketcher.Constraint("Equal", 5, 26))
sketch1.addConstraint(Sketcher.Constraint("Equal", 28, 37))
sketch1.addConstraint(Sketcher.Constraint("Equal", 39, 47))
sketch1.addConstraint(Sketcher.Constraint("DistanceX", 0, 2, -1, 1, Q("1.5748 in")))
sketch1.addConstraint(Sketcher.Constraint("Diameter", 64, 7.3976))
sketch1.addConstraint(Sketcher.Constraint("DistanceX", 74, 2, 74, 1, Q("0.471 in")))
sketch1.addConstraint(Sketcher.Constraint("DistanceX", -1, 1, 37, 2, Q("0.98 in")))
sketch1.addConstraint(Sketcher.Constraint("Angle", 17, Q("-44.6807 deg")))
sketch1.addConstraint(Sketcher.Constraint("Distance", 66, Q("0.349 in")))
sketch1.addConstraint(Sketcher.Constraint("DistanceX", 19, 2, 19, 1, Q("0.2322 in")))
sketch1.addConstraint(Sketcher.Constraint("DistanceX", 35, 1, 35, 2, Q("0.2328 in")))
sketch1.addConstraint(Sketcher.Constraint("DistanceY", 0, 2, 0, 1, Q("0.6263 in")))
sketch1.addConstraint(Sketcher.Constraint("DistanceY", 20, 2, 20, 1, Q("0.1597 in")))
sketch1.addConstraint(Sketcher.Constraint("Distance", 15, Q("0.2847 in")))
sketch1.addConstraint(Sketcher.Constraint("Distance", 39, Q("0.2838 in")))
sketch1.addConstraint(Sketcher.Constraint("DistanceX", 1, 1, 1, 2, 15.8947))
sketch1.addConstraint(Sketcher.Constraint("DistanceX", 3, 2, 3, 1, 5.8848))
sketch1.addConstraint(Sketcher.Constraint("DistanceX", 6, 1, 6, 2, 9.74))
sketch1.addConstraint(Sketcher.Constraint("DistanceX", 11, 1, 11, 2, 31.7894))
sketch1.addConstraint(Sketcher.Constraint("DistanceX", 23, 2, 23, 1, 4.012))
sketch1.addConstraint(Sketcher.Constraint("DistanceX", 25, 2, 25, 1, 3.1542))
sketch1.addConstraint(Sketcher.Constraint("DistanceX", 29, 1, 29, 2, 3.1705))
sketch1.addConstraint(Sketcher.Constraint("DistanceX", 31, 1, 31, 2, 3.9987))
sketch1.addConstraint(Sketcher.Constraint("DistanceX", 68, 1, 68, 2, 11.996))
sketch1.addConstraint(Sketcher.Constraint("DistanceY", 36, 2, 36, 1, 3.1258))
sketch1.addConstraint(Sketcher.Constraint("DistanceY", 7, 2, -1, 1, Q("0.5054 in")))
sketch1.addConstraint(Sketcher.Constraint("DistanceX", 64, 3, -1, 1, 20.0066))
sketch1.addConstraint(Sketcher.Constraint("DistanceY", -1, 1, 64, 3, 0.0296))
pad1 = body.newObject("PartDesign::Pad", "Pad")
pad1.Profile = sketch1
pad1.Length = 600

doc.recompute()
